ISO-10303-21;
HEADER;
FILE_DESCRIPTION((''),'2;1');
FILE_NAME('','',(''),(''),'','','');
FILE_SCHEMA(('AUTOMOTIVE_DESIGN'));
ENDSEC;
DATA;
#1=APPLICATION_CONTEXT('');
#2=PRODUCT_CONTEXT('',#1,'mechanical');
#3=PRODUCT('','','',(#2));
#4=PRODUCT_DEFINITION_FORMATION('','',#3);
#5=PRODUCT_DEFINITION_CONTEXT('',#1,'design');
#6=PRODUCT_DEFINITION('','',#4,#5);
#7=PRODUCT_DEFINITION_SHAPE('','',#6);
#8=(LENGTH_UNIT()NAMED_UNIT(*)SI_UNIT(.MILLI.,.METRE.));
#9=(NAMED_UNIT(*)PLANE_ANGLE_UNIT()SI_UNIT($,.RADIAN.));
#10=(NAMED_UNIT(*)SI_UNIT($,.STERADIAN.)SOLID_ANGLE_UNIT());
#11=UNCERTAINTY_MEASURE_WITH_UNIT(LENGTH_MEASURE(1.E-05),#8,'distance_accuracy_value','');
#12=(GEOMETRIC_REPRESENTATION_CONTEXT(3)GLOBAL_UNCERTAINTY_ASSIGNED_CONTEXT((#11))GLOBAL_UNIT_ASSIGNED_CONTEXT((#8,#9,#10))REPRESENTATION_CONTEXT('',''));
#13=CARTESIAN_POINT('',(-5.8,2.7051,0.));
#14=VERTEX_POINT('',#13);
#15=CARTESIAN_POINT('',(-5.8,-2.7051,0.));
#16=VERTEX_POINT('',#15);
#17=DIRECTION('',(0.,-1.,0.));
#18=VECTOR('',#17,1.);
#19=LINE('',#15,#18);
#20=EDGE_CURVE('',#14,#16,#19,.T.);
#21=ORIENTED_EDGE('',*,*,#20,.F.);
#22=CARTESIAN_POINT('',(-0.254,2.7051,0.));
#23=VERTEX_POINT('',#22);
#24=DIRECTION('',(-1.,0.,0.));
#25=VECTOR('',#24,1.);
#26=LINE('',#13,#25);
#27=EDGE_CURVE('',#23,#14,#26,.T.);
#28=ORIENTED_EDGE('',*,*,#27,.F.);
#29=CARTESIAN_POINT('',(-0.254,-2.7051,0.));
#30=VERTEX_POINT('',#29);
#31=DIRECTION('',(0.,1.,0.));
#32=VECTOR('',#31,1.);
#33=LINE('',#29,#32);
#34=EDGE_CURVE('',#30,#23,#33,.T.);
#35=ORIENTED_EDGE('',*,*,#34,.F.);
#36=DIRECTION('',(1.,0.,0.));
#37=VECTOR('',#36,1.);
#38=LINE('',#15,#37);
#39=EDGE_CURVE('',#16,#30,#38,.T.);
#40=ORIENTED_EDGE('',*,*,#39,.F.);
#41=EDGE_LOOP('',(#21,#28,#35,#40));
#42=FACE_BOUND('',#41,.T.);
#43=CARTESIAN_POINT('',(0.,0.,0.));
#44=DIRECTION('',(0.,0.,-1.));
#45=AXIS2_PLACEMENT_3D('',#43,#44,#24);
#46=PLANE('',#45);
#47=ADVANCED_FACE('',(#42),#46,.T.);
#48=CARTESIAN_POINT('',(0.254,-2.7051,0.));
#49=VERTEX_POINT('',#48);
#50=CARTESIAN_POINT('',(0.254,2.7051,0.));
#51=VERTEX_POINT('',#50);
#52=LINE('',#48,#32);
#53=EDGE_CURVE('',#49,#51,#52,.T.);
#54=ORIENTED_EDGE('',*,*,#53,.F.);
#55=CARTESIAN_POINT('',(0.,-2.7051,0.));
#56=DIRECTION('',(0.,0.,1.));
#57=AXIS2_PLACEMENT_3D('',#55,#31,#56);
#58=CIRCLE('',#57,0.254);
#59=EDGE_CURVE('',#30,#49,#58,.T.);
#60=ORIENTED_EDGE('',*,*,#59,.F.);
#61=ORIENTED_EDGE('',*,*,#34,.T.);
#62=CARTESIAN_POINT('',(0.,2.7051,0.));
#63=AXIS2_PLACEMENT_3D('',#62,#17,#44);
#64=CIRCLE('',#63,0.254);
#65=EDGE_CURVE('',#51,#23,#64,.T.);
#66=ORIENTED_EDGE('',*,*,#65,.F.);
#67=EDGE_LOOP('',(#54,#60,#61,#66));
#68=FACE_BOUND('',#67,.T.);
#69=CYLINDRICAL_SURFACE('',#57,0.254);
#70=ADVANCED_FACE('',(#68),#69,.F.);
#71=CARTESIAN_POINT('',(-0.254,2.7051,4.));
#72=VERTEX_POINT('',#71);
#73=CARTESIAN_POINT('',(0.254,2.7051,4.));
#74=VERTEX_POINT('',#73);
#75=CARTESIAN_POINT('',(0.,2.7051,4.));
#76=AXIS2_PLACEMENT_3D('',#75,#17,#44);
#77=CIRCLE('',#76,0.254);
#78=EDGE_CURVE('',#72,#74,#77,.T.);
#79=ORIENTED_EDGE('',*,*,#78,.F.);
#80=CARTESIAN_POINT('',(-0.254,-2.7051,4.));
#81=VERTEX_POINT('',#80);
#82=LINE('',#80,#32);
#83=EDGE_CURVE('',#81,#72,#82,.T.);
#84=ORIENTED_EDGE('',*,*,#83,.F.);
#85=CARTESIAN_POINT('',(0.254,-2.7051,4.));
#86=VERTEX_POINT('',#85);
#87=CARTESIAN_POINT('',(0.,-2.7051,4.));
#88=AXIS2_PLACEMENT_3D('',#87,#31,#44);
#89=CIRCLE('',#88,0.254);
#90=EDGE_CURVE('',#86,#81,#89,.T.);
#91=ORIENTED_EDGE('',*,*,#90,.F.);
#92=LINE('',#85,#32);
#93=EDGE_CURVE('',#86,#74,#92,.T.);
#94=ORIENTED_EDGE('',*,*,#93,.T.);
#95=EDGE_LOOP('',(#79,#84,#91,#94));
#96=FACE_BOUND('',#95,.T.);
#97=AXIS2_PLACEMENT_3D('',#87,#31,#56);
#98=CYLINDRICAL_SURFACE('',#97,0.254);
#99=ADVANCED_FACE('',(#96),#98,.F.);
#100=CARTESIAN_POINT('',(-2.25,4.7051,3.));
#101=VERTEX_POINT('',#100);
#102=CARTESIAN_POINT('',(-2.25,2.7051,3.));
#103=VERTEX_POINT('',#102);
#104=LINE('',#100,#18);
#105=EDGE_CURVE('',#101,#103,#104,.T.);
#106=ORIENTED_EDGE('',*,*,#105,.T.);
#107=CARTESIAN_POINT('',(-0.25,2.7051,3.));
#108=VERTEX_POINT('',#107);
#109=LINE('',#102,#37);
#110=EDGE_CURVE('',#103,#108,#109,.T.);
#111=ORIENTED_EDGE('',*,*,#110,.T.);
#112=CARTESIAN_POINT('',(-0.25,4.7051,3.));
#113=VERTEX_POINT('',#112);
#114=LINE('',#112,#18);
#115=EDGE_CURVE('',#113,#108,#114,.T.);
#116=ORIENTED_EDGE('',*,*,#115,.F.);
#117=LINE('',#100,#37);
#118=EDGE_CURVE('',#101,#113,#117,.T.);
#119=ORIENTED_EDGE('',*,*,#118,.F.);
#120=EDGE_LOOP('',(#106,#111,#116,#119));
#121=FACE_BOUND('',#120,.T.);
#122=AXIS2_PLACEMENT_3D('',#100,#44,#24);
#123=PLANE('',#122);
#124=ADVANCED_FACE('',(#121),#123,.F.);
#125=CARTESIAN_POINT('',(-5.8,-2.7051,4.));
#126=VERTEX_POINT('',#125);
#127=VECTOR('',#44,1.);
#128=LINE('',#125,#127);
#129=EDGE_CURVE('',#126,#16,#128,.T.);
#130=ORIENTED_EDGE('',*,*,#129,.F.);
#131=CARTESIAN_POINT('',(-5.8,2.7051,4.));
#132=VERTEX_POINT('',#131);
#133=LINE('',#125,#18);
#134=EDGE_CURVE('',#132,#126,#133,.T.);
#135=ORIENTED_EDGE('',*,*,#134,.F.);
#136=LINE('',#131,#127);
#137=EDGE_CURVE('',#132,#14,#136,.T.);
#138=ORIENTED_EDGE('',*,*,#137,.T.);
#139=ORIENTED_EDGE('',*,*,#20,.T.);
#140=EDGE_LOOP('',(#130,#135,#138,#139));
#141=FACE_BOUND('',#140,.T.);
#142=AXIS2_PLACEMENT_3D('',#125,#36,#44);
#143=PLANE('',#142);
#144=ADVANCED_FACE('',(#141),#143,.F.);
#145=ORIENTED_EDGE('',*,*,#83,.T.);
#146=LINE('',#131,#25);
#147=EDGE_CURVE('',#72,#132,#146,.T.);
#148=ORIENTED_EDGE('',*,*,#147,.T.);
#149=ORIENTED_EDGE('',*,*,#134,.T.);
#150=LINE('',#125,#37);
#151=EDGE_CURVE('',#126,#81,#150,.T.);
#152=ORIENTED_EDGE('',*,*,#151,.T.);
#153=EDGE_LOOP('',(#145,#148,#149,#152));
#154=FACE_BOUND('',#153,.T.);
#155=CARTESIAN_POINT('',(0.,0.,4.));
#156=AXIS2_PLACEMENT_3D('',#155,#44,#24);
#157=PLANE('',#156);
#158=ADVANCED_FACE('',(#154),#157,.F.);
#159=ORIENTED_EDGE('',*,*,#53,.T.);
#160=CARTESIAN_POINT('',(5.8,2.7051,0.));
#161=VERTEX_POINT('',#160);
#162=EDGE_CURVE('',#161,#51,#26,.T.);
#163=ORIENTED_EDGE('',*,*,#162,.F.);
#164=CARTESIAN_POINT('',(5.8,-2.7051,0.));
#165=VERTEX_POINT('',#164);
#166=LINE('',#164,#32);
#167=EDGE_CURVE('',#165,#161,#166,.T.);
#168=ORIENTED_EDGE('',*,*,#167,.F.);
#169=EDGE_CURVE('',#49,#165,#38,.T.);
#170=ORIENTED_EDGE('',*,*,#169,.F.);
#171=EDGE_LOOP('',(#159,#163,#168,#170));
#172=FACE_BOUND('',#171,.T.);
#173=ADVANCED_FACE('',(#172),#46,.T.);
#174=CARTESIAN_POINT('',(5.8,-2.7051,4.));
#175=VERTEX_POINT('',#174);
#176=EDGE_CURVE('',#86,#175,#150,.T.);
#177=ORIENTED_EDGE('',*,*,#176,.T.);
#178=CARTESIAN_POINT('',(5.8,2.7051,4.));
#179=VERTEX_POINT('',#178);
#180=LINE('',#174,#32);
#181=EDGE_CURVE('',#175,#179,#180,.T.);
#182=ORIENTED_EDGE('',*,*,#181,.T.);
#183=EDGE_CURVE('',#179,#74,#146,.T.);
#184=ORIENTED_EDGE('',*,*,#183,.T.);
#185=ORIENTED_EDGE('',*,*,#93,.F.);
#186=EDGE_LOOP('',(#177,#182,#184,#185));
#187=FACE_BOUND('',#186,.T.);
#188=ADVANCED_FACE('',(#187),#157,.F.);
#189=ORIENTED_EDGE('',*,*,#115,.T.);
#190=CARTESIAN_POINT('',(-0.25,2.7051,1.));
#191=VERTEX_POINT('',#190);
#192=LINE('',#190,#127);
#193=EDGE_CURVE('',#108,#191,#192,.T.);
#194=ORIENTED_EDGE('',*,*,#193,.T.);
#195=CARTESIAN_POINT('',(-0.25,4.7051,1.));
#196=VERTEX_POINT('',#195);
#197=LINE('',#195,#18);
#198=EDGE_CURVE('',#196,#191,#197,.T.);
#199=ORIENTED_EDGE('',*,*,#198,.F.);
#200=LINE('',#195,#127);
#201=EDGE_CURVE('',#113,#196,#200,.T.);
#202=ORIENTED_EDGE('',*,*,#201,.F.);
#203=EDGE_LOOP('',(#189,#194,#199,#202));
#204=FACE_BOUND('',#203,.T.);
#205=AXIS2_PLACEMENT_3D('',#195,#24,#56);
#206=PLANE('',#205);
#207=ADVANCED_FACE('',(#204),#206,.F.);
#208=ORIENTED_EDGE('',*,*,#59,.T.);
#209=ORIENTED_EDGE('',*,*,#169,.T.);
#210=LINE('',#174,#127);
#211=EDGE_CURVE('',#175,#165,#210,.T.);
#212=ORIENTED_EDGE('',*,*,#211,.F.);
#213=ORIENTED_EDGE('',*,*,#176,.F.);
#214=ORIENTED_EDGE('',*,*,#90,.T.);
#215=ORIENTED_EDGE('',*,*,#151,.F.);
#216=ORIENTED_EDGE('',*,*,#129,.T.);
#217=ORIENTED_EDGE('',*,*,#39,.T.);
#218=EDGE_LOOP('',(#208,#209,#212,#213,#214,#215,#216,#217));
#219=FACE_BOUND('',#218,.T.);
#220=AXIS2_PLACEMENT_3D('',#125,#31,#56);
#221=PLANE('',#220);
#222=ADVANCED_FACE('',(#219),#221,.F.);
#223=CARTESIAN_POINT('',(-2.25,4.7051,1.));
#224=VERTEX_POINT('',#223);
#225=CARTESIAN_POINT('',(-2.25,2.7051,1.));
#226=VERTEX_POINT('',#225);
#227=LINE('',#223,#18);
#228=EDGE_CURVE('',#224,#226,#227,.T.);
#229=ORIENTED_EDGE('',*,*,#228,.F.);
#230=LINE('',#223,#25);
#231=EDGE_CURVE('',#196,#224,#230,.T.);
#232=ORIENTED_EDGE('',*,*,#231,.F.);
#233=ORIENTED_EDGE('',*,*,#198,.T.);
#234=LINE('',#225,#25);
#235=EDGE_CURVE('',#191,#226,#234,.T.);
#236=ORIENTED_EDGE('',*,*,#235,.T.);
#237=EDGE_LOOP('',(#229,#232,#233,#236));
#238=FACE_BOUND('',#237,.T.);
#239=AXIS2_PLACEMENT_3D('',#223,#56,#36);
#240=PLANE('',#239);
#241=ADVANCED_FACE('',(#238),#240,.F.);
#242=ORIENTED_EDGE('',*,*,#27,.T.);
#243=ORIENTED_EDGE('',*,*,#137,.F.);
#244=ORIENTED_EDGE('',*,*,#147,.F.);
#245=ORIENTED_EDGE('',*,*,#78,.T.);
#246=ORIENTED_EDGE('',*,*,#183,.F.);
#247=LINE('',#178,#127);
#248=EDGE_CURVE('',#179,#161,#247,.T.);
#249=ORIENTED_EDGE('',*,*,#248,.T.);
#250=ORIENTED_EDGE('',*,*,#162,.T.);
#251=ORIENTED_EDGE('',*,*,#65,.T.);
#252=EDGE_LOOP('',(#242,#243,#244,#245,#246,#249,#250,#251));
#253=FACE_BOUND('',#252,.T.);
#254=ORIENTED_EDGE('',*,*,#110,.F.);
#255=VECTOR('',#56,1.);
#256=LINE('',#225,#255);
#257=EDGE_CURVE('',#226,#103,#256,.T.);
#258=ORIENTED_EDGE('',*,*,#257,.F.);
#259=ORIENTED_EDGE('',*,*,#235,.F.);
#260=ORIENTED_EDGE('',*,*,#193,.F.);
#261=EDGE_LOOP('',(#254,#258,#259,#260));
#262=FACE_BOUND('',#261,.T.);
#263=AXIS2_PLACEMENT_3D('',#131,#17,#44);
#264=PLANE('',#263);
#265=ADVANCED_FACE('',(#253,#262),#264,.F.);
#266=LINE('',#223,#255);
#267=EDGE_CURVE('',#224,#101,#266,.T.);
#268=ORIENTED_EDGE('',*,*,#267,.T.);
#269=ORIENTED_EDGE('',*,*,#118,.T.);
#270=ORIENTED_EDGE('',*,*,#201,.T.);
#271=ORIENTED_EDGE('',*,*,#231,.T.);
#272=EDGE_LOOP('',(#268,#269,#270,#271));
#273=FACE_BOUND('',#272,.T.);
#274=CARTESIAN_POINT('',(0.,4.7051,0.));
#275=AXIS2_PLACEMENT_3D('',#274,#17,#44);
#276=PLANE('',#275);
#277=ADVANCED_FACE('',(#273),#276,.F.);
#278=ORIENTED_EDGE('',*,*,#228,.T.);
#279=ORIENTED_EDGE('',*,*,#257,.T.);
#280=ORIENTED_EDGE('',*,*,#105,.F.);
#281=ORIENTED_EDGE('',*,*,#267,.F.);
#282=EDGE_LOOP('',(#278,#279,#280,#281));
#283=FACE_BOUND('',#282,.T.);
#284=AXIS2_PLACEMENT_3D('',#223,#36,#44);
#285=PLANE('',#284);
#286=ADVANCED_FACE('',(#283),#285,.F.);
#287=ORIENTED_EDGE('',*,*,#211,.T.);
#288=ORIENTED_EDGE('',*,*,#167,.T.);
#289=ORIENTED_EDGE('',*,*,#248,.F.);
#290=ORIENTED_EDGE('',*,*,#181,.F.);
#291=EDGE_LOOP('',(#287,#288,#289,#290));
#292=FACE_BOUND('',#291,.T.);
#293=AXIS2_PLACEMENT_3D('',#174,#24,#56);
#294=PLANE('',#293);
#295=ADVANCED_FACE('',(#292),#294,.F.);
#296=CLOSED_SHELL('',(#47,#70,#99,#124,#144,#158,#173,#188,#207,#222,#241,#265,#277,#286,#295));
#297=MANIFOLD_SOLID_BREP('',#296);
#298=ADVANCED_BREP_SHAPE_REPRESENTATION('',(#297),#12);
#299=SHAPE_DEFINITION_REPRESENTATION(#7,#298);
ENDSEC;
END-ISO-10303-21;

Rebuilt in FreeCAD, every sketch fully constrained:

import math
import FreeCAD as App
import Part
import Sketcher

V = App.Vector


def add_polygon(sketch, points):
    """Adds a closed chain of lines whose ends are joined by coincident constraints."""
    first, n = sketch.GeometryCount, len(points)
    for a, b in zip(points, points[1:] + points[:1]):
        sketch.addGeometry(Part.LineSegment(App.Vector(*a, 0), App.Vector(*b, 0)), False)
    for i in range(n):
        sketch.addConstraint(Sketcher.Constraint("Coincident", first + i, 2, first + (i + 1) % n, 1))

doc = App.newDocument("Part")
body = doc.addObject("PartDesign::Body", "Body")

# Sketch on XY plane
sketch1 = body.newObject("Sketcher::SketchObject", "Sketch")
sketch1.AttachmentSupport = (doc.getObject("XY_Plane"), [""])
sketch1.MapMode = "FlatFace"
add_polygon(sketch1, [(-5.8, 2.7051), (-5.8, -2.7051), (5.8, -2.7051), (5.8, 2.7051)])  # lines 0-3
sketch1.addConstraint([
    Sketcher.Constraint("Vertical", 0),
    Sketcher.Constraint("Horizontal", 1),
    Sketcher.Constraint("Vertical", 2),
    Sketcher.Constraint("Horizontal", 3),
    Sketcher.Constraint("Symmetric", 0, 2, 2, 2, -1, 1),
    Sketcher.Constraint("DistanceX", 1, 1, 1, 2, 11.6),
    Sketcher.Constraint("DistanceY", 0, 2, 0, 1, 5.4102),
])
pad1 = body.newObject("PartDesign::Pad", "Pad")
pad1.Profile = sketch1
pad1.Length = 4

# Sketch on XZ plane
sketch2 = body.newObject("Sketcher::SketchObject", "Sketch001")
sketch2.AttachmentSupport = (doc.getObject("XZ_Plane"), [""])
sketch2.MapMode = "FlatFace"
sketch2.AttachmentOffset = App.Placement(V(0, 0, -2.7051), App.Rotation())
add_polygon(sketch2, [(-2.25, 1), (-2.25, 3), (-0.25, 3), (-0.25, 1)])  # lines 0-3
sketch2.addConstraint([
    Sketcher.Constraint("Vertical", 0),
    Sketcher.Constraint("Horizontal", 1),
    Sketcher.Constraint("Vertical", 2),
    Sketcher.Constraint("Horizontal", 3),
    Sketcher.Constraint("Equal", 3, 0),
    Sketcher.Constraint("DistanceX", 1, 1, 1, 2, 2.0),
    Sketcher.Constraint("DistanceY", -1, 1, 0, 2, 3.0),
    Sketcher.Constraint("DistanceX", 0, 2, -1, 1, 2.25),
])
pad2 = body.newObject("PartDesign::Pad", "Pad001")
pad2.Profile = sketch2
pad2.Length = 2
pad2.Reversed = True

# Sketch on XZ plane
sketch3 = body.newObject("Sketcher::SketchObject", "Sketch002")
sketch3.AttachmentSupport = (doc.getObject("XZ_Plane"), [""])
sketch3.MapMode = "FlatFace"
sketch3.AttachmentOffset = App.Placement(V(0, 0, -2.7051), App.Rotation())
sketch3.addGeometry([
    Part.LineSegment(V(0.254, 0, 0), V(-0.254, 0, 0)),
    Part.ArcOfCircle(Part.Circle(V(0, 0, 0), V(0, 0, 1), 0.254), math.radians(0), math.radians(180)),
    Part.LineSegment(V(-0.254, 4, 0), V(0.254, 4, 0)),
    Part.ArcOfCircle(Part.Circle(V(0, 4, 0), V(0, 0, 1), 0.254), math.radians(180), math.radians(360)),
], False)
sketch3.addConstraint([
    Sketcher.Constraint("Coincident", 0, 1, 1, 1),
    Sketcher.Constraint("Coincident", 1, 2, 0, 2),
    Sketcher.Constraint("Coincident", 2, 1, 3, 1),
    Sketcher.Constraint("Coincident", 3, 2, 2, 2),
    Sketcher.Constraint("Horizontal", 0),
    Sketcher.Constraint("Horizontal", 2),
    Sketcher.Constraint("Coincident", 1, 3, -1, 1),
    Sketcher.Constraint("Equal", 1, 3),
    Sketcher.Constraint("PointOnObject", 3, 3, -2),
    Sketcher.Constraint("PointOnObject", 0, 1, -1),
    Sketcher.Constraint("Horizontal", 3, 3, 2, 1),
    Sketcher.Constraint("DistanceY", -1, 1, 3, 3, 4.0),
    Sketcher.Constraint("Radius", 1, 0.254),
])
pocket1 = body.newObject("PartDesign::Pocket", "Pocket")
pocket1.Profile = sketch3
pocket1.Type = "ThroughAll"
pocket1.Midplane = True

doc.recompute()
